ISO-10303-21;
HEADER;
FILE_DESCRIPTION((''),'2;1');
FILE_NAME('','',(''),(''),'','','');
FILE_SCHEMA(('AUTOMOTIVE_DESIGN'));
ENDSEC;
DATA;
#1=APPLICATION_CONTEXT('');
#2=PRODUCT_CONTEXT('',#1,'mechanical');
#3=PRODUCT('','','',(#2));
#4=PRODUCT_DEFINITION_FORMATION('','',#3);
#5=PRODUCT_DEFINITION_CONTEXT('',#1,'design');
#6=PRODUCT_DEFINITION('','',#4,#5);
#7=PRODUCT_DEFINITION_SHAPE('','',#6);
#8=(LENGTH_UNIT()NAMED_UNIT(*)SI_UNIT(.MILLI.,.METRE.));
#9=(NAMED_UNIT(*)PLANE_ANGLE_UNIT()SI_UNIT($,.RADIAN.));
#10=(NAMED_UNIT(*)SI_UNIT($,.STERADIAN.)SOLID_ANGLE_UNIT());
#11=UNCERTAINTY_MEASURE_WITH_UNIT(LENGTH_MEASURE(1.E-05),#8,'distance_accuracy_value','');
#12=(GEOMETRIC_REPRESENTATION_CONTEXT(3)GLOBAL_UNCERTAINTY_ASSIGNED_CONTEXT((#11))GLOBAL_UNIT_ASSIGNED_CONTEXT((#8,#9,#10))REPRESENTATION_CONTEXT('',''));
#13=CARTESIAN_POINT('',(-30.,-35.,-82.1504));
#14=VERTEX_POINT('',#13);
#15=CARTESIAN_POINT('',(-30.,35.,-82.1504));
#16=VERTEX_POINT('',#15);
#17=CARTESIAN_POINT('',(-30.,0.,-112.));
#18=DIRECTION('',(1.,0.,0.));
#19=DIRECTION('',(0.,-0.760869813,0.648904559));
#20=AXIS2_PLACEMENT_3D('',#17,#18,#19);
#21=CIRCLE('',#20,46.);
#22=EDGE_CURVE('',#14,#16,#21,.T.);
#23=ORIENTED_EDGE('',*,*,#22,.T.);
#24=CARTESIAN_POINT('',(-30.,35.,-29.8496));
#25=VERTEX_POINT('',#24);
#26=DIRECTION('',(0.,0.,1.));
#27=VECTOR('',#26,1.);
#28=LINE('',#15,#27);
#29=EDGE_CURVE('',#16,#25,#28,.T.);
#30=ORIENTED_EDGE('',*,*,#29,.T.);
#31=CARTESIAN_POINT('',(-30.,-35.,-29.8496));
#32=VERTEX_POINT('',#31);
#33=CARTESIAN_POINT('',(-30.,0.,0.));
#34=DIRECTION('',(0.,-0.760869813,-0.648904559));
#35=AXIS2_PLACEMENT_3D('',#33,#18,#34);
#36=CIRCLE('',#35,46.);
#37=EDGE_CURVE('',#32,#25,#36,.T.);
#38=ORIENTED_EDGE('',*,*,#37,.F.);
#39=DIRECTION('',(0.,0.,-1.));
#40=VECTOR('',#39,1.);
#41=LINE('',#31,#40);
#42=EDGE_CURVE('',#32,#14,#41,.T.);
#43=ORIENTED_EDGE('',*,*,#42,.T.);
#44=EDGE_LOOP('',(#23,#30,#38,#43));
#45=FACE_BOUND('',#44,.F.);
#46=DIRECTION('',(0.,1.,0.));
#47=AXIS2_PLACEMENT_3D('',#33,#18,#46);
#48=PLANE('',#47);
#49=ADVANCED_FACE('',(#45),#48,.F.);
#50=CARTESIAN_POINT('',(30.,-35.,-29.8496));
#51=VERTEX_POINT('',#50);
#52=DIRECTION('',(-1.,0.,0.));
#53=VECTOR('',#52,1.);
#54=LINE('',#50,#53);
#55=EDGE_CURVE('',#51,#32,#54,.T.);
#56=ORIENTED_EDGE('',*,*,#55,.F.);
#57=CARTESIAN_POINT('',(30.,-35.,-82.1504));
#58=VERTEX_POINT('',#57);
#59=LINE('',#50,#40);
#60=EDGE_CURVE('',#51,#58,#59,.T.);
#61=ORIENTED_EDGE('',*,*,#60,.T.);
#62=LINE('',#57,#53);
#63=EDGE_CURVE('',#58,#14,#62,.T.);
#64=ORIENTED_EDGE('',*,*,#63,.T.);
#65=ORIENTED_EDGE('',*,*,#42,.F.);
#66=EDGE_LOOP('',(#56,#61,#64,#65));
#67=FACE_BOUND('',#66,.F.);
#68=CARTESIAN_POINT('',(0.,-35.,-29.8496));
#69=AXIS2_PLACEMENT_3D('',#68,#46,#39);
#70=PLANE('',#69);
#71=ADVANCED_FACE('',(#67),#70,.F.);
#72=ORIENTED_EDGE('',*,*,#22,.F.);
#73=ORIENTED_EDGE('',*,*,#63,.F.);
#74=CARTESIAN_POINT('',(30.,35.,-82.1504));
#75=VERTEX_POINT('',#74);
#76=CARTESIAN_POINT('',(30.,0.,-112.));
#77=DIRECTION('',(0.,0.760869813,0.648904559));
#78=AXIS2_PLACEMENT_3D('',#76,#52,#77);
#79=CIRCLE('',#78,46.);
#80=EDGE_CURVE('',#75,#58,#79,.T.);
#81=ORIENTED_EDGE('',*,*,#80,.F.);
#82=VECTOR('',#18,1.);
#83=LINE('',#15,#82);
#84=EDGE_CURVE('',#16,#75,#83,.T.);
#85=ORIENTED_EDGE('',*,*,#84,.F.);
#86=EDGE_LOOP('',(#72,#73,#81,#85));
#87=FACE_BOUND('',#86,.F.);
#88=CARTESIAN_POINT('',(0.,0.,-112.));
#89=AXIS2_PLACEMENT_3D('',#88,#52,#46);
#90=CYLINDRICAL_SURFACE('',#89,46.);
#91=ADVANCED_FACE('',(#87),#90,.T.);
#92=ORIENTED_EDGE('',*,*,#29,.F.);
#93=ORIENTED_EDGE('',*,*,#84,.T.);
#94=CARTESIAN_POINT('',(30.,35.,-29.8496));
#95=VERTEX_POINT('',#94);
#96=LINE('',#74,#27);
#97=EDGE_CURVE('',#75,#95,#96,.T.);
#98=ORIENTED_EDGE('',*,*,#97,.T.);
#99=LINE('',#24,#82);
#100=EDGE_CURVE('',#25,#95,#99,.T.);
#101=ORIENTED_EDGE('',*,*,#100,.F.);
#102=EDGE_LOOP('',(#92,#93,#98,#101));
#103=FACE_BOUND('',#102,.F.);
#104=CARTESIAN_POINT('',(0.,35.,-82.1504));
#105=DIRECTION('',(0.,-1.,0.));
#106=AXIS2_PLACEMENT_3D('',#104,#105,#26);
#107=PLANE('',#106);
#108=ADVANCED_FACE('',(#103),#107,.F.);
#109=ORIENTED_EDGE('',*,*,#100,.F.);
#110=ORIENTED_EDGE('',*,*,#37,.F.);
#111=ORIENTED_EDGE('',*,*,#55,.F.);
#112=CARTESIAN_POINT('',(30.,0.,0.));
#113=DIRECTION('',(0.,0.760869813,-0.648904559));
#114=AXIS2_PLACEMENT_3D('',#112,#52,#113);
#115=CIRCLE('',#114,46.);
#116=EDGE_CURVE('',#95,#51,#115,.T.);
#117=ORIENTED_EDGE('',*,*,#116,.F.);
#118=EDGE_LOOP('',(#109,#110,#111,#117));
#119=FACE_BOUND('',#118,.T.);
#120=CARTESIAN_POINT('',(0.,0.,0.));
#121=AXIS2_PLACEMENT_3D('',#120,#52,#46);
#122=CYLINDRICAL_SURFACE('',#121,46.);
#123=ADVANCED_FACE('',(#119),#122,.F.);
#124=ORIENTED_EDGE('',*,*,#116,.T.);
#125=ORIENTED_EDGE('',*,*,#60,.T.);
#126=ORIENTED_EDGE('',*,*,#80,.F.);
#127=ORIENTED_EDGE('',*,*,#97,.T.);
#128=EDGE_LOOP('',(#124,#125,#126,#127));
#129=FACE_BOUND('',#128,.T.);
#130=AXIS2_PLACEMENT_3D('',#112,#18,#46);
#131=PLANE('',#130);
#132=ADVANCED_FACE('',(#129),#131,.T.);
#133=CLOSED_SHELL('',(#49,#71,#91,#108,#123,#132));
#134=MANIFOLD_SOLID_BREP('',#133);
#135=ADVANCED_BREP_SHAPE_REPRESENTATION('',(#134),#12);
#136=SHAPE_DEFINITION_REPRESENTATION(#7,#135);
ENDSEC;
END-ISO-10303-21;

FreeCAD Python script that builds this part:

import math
import FreeCAD as App
import Part
import Sketcher
Q = App.Units.Quantity

doc = App.newDocument("Part")
body = doc.addObject("PartDesign::Body", "Body")

sketch1 = doc.addObject("Sketcher::SketchObject", "Sketch")
body.addObject(sketch1)
sketch1.AttachmentSupport = (doc.YZ_Plane, [""])
sketch1.MapMode = "FlatFace"
sketch1.addGeometry(Part.ArcOfCircle(Part.Circle(App.Vector(0, -112, 0), App.Vector(0, 0, 1), 46), math.radians(140), math.radians(400)), False)
sketch1.addGeometry(Part.LineSegment(App.Vector(35, -82, 0), App.Vector(35, -30, 0)), False)
sketch1.addGeometry(Part.ArcOfCircle(Part.Circle(App.Vector(0, 0, 0), App.Vector(0, 0, 1), 46), math.radians(-140), math.radians(-40)), False)
sketch1.addGeometry(Part.LineSegment(App.Vector(-35, -30, 0), App.Vector(-35, -82, 0)), False)
sketch1.addConstraint(Sketcher.Constraint("Coincident", 0, 2, 1, 1))
sketch1.addConstraint(Sketcher.Constraint("Coincident", 1, 2, 2, 2))
sketch1.addConstraint(Sketcher.Constraint("Coincident", 2, 1, 3, 1))
sketch1.addConstraint(Sketcher.Constraint("Coincident", 3, 2, 0, 1))
sketch1.addConstraint(Sketcher.Constraint("Vertical", 1))
sketch1.addConstraint(Sketcher.Constraint("Vertical", 3))
sketch1.addConstraint(Sketcher.Constraint("Coincident", 2, 3, -1, 1))
sketch1.addConstraint(Sketcher.Constraint("Equal", 0, 2))
sketch1.addConstraint(Sketcher.Constraint("Symmetric", 0, 2, 3, 2, -2))
sketch1.addConstraint(Sketcher.Constraint("Radius", 0, Q("46 mm")))
sketch1.addConstraint(Sketcher.Constraint("DistanceY", 0, 3, -1, 1, Q("112 mm")))
sketch1.addConstraint(Sketcher.Constraint("DistanceX", 2, 1, 1, 2, Q("70 mm")))
pad1 = doc.addObject("PartDesign::Pad", "Pad")
body.addObject(pad1)
pad1.Profile = sketch1
pad1.Length = 60
pad1.Midplane = True

doc.recompute()
